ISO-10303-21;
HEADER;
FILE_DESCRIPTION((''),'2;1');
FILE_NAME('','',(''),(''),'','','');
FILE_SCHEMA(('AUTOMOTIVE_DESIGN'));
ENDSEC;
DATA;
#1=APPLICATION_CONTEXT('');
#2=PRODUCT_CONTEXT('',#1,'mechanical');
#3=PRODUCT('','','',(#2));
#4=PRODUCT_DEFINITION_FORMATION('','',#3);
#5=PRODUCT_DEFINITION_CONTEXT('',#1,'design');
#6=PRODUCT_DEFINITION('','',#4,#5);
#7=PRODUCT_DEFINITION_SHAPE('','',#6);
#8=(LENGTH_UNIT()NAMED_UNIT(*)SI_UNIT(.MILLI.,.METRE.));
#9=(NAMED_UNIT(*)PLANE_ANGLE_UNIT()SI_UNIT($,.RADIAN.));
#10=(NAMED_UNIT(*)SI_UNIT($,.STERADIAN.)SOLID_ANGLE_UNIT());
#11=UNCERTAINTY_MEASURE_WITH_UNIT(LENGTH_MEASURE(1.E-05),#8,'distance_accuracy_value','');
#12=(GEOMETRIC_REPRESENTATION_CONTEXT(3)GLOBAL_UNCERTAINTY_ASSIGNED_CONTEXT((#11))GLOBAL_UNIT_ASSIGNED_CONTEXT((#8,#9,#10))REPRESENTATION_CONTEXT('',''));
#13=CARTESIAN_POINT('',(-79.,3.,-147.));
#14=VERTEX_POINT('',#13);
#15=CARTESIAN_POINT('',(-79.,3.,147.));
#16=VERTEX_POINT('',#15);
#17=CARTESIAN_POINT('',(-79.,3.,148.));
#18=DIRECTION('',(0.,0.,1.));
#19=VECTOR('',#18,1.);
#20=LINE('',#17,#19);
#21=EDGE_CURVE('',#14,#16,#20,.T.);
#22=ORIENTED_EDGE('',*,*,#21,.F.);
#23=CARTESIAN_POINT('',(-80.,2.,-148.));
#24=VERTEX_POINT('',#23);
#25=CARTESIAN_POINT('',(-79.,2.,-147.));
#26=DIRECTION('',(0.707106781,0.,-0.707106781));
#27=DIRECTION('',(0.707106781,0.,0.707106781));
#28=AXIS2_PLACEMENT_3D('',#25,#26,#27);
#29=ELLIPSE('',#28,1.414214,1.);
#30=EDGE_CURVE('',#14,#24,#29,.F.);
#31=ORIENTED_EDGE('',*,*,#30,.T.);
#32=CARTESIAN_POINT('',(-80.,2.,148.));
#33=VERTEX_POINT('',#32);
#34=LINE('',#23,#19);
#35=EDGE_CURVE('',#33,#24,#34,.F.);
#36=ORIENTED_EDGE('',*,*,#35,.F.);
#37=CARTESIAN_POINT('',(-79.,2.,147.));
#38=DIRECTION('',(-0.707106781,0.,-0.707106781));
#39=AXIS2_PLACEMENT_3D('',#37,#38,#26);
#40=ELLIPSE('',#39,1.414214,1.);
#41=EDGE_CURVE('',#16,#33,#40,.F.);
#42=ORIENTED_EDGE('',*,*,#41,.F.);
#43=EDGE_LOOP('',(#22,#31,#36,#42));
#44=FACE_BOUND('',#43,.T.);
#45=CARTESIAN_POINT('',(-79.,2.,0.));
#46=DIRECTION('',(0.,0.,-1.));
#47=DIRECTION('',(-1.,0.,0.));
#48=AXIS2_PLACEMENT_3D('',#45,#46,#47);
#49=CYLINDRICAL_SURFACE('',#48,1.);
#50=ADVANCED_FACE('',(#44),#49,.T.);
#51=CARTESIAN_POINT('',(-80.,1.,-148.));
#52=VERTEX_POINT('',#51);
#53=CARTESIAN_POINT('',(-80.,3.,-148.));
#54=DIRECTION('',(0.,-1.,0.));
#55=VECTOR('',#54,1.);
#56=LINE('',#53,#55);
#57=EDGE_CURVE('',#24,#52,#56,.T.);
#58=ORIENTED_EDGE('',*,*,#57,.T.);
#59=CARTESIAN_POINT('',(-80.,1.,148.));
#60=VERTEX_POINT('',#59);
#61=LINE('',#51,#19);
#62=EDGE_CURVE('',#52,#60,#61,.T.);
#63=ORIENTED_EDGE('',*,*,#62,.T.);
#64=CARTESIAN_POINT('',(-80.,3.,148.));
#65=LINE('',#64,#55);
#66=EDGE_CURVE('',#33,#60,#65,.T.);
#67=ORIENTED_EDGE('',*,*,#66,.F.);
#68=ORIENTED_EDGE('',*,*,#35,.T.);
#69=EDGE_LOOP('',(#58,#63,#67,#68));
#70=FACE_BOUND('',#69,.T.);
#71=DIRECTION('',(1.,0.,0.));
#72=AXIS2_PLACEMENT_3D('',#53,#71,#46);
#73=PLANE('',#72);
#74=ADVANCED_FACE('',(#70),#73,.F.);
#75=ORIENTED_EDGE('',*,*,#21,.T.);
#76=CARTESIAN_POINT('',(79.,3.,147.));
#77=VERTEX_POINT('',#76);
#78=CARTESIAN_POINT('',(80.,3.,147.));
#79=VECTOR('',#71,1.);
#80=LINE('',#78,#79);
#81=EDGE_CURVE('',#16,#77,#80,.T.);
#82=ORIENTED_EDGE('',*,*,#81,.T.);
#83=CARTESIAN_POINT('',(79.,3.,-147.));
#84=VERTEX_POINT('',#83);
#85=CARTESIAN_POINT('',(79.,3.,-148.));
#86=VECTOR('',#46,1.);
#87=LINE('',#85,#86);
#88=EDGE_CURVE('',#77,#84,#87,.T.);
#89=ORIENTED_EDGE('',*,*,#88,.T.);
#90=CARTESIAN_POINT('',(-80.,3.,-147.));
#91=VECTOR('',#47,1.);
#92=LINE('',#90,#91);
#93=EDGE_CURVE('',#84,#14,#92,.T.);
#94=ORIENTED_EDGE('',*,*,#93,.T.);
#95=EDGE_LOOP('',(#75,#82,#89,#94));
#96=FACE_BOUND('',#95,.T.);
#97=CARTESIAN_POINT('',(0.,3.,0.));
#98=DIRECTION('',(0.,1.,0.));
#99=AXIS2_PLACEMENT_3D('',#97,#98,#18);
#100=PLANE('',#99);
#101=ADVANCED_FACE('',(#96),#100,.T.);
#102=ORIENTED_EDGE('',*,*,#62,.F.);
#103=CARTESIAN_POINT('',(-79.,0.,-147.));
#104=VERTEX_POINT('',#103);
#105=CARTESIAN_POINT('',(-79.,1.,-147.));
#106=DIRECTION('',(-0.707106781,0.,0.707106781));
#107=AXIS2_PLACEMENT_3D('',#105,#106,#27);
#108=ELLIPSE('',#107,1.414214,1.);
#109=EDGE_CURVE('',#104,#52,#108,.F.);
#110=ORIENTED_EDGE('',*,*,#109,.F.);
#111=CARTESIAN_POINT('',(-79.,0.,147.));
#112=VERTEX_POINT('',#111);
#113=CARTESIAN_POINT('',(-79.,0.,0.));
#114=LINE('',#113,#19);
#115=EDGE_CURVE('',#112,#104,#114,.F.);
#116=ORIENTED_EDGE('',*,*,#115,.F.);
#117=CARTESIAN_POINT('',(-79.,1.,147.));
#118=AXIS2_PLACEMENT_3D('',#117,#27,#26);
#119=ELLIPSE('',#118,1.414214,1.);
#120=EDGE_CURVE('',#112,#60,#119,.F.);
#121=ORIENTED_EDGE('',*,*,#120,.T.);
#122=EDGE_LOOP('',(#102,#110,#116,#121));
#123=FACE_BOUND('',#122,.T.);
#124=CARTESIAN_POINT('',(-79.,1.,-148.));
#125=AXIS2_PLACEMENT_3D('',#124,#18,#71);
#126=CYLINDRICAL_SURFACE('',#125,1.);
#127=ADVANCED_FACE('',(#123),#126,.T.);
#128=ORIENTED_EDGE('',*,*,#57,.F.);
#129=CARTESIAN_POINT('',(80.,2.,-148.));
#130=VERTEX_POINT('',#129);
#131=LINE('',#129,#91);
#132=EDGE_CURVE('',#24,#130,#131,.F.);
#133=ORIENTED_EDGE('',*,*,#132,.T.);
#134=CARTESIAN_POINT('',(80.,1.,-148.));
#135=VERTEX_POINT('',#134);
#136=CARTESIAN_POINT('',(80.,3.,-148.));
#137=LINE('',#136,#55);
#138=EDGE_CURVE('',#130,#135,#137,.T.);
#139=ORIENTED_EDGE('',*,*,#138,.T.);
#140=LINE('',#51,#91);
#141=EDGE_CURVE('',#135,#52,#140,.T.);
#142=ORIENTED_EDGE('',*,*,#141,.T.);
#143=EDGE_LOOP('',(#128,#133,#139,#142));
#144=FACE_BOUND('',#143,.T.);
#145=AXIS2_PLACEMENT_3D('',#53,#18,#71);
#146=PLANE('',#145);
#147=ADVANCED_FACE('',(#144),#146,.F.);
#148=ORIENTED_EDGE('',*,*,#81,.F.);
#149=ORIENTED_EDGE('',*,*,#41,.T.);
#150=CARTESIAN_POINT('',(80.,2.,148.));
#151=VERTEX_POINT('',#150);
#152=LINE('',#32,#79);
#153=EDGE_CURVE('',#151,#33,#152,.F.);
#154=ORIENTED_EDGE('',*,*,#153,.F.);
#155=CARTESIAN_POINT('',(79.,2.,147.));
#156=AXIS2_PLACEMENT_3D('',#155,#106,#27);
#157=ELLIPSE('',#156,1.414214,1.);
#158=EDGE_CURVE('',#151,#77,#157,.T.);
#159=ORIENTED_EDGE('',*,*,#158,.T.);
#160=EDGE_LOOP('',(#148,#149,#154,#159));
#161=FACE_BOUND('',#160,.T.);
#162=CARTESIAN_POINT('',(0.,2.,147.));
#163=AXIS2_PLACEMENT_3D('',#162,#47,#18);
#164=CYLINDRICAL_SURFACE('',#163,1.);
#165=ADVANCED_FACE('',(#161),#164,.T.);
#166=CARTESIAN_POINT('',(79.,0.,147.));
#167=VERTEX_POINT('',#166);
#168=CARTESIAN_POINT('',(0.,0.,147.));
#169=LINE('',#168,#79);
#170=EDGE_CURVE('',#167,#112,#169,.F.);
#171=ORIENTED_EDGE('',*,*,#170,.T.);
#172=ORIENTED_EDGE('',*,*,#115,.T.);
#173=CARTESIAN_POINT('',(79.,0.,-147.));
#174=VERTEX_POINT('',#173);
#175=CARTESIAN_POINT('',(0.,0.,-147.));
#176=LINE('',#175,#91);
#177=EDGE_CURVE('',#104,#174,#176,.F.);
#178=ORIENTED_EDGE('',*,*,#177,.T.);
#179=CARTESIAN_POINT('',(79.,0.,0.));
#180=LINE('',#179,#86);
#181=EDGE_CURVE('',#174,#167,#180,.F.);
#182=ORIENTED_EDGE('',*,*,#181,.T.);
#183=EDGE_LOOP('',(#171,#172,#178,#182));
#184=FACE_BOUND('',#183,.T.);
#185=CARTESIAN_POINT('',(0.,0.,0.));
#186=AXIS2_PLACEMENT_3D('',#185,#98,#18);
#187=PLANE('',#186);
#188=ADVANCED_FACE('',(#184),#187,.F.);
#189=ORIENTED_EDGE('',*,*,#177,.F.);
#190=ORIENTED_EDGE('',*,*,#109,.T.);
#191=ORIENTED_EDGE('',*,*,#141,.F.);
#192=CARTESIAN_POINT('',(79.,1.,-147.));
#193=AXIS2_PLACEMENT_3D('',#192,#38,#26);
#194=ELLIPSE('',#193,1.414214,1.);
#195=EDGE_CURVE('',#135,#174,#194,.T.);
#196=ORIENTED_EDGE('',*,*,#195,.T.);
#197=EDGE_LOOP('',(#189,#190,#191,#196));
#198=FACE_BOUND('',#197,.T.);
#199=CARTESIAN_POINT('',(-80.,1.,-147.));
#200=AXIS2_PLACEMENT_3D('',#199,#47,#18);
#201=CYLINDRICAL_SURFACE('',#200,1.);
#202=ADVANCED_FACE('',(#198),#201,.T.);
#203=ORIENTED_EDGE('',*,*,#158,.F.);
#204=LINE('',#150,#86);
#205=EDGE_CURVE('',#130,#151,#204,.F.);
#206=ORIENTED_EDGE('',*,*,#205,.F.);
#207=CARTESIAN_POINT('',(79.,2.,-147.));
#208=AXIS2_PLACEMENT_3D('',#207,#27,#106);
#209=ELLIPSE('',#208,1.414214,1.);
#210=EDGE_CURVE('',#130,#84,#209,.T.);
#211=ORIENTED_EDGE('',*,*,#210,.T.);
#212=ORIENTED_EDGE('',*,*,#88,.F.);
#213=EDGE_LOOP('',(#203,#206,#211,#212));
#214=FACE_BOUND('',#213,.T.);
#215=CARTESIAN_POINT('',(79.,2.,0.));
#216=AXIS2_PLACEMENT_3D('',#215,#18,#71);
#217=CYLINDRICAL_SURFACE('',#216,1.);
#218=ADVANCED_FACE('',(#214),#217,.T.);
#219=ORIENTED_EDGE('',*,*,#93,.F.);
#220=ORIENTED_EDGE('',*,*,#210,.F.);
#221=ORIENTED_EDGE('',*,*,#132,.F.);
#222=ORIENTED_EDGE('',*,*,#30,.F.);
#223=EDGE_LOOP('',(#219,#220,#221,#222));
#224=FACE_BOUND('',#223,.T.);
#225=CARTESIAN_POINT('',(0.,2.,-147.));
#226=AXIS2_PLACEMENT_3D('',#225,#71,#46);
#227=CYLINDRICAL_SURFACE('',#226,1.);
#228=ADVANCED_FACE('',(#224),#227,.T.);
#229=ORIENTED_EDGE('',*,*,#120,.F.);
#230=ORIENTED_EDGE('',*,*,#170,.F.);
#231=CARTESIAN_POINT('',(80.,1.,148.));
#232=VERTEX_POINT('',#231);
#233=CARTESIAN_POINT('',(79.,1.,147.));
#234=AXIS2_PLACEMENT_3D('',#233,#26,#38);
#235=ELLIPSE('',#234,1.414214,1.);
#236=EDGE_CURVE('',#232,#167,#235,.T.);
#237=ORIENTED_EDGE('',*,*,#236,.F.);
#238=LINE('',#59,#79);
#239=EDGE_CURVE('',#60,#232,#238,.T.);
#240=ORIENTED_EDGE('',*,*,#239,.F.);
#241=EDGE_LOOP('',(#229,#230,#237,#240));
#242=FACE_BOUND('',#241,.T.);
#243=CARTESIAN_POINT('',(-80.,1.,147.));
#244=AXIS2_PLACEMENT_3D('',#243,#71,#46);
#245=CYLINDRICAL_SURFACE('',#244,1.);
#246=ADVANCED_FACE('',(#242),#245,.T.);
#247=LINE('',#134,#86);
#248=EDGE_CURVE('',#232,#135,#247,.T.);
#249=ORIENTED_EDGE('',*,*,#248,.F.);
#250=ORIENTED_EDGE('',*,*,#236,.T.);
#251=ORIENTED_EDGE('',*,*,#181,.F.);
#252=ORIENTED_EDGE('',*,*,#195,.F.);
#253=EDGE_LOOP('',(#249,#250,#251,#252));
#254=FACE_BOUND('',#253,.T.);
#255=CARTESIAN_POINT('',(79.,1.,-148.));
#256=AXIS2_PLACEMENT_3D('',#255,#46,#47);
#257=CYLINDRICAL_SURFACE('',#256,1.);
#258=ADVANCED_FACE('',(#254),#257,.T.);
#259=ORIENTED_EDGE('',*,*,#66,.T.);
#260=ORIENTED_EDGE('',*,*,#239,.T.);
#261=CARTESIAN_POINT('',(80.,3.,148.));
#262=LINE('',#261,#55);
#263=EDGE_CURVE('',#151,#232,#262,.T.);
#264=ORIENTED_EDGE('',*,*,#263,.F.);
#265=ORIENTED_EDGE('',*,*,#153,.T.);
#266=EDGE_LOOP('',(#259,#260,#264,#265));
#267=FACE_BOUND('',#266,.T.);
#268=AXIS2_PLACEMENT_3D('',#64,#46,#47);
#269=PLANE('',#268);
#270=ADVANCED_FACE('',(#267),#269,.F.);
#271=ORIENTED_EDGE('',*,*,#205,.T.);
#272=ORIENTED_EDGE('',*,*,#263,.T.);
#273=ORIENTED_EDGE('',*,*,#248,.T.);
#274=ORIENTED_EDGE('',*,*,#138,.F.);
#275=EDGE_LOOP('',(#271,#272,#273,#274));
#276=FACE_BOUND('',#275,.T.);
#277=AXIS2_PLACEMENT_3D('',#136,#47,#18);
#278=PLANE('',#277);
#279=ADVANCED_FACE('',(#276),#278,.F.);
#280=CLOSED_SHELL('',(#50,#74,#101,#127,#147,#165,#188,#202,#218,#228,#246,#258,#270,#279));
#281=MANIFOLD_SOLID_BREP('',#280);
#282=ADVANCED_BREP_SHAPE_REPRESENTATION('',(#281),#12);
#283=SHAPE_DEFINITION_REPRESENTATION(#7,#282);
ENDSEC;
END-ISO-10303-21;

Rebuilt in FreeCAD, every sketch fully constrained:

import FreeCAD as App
import Part
import Sketcher
from FreeCAD import Vector
Q = App.Units.Quantity


def edges_at(feature, points):
    """Names of the edges that pass closest to the given points."""
    edges = feature.Shape.Edges
    near = lambda p: min(range(len(edges)), key=lambda i: edges[i].distToShape(Part.Vertex(*p))[0])
    return sorted({f"Edge{near(p) + 1}" for p in points})


def add_polygon(sketch, points):
    """Adds a closed chain of lines whose ends are joined by coincident constraints."""
    first, n = sketch.GeometryCount, len(points)
    for a, b in zip(points, points[1:] + points[:1]):
        sketch.addGeometry(Part.LineSegment(App.Vector(*a, 0), App.Vector(*b, 0)), False)
    for i in range(n):
        sketch.addConstraint(Sketcher.Constraint("Coincident", first + i, 2, first + (i + 1) % n, 1))

doc = App.newDocument("Part")
params = doc.addObject("Spreadsheet::Sheet", "Params")
for row, (alias, value) in enumerate([
    ("sketch1_width", "160 mm"),
    ("sketch1_height", "296 mm"),
    ("pad1_length", "3 mm"),
    ("fillet_radius", "1 mm"),
], start=1):
    params.set(f"A{row}", alias)
    params.set(f"B{row}", "=" + value)
    params.setAlias(f"B{row}", alias)

body = doc.addObject("PartDesign::Body", "Body")

sketch1 = body.newObject("Sketcher::SketchObject", "Sketch")
sketch1.AttachmentSupport = (doc.getObject("XZ_Plane"), [""])
sketch1.MapMode = "FlatFace"
add_polygon(sketch1, [(-80, -148), (-80, 148), (80, 148), (80, -148)])
sketch1.addConstraint([
    Sketcher.Constraint("Vertical", 0),
    Sketcher.Constraint("Horizontal", 1),
    Sketcher.Constraint("Vertical", 2),
    Sketcher.Constraint("Horizontal", 3),
    Sketcher.Constraint("Symmetric", 0, 2, 2, 2, -1, 1),
    Sketcher.Constraint("DistanceX", 1, 1, 1, 2, Q("160 mm")),
    Sketcher.Constraint("DistanceY", 0, 1, 0, 2, Q("296 mm")),
])
sketch1.setExpression("Constraints[9]", "Params.sketch1_width")
sketch1.setExpression("Constraints[10]", "Params.sketch1_height")
pad1 = body.newObject("PartDesign::Pad", "Pad")
pad1.Profile = sketch1
pad1.setExpression("Length", "Params.pad1_length")
pad1.Reversed = True
doc.recompute()

fillet = body.newObject("PartDesign::Fillet", "Fillet")
fillet.Base = (pad1, edges_at(pad1, [
    (-80, 3, 0),
    (0, 3, 148),
    (80, 3, 0),
    (0, 0, 148),
    (-80, 0, 0),
    (0, 0, -148),
    (80, 0, 0),
    (0, 3, -148),
]))
fillet.setExpression("Radius", "Params.fillet_radius")

doc.recompute()
